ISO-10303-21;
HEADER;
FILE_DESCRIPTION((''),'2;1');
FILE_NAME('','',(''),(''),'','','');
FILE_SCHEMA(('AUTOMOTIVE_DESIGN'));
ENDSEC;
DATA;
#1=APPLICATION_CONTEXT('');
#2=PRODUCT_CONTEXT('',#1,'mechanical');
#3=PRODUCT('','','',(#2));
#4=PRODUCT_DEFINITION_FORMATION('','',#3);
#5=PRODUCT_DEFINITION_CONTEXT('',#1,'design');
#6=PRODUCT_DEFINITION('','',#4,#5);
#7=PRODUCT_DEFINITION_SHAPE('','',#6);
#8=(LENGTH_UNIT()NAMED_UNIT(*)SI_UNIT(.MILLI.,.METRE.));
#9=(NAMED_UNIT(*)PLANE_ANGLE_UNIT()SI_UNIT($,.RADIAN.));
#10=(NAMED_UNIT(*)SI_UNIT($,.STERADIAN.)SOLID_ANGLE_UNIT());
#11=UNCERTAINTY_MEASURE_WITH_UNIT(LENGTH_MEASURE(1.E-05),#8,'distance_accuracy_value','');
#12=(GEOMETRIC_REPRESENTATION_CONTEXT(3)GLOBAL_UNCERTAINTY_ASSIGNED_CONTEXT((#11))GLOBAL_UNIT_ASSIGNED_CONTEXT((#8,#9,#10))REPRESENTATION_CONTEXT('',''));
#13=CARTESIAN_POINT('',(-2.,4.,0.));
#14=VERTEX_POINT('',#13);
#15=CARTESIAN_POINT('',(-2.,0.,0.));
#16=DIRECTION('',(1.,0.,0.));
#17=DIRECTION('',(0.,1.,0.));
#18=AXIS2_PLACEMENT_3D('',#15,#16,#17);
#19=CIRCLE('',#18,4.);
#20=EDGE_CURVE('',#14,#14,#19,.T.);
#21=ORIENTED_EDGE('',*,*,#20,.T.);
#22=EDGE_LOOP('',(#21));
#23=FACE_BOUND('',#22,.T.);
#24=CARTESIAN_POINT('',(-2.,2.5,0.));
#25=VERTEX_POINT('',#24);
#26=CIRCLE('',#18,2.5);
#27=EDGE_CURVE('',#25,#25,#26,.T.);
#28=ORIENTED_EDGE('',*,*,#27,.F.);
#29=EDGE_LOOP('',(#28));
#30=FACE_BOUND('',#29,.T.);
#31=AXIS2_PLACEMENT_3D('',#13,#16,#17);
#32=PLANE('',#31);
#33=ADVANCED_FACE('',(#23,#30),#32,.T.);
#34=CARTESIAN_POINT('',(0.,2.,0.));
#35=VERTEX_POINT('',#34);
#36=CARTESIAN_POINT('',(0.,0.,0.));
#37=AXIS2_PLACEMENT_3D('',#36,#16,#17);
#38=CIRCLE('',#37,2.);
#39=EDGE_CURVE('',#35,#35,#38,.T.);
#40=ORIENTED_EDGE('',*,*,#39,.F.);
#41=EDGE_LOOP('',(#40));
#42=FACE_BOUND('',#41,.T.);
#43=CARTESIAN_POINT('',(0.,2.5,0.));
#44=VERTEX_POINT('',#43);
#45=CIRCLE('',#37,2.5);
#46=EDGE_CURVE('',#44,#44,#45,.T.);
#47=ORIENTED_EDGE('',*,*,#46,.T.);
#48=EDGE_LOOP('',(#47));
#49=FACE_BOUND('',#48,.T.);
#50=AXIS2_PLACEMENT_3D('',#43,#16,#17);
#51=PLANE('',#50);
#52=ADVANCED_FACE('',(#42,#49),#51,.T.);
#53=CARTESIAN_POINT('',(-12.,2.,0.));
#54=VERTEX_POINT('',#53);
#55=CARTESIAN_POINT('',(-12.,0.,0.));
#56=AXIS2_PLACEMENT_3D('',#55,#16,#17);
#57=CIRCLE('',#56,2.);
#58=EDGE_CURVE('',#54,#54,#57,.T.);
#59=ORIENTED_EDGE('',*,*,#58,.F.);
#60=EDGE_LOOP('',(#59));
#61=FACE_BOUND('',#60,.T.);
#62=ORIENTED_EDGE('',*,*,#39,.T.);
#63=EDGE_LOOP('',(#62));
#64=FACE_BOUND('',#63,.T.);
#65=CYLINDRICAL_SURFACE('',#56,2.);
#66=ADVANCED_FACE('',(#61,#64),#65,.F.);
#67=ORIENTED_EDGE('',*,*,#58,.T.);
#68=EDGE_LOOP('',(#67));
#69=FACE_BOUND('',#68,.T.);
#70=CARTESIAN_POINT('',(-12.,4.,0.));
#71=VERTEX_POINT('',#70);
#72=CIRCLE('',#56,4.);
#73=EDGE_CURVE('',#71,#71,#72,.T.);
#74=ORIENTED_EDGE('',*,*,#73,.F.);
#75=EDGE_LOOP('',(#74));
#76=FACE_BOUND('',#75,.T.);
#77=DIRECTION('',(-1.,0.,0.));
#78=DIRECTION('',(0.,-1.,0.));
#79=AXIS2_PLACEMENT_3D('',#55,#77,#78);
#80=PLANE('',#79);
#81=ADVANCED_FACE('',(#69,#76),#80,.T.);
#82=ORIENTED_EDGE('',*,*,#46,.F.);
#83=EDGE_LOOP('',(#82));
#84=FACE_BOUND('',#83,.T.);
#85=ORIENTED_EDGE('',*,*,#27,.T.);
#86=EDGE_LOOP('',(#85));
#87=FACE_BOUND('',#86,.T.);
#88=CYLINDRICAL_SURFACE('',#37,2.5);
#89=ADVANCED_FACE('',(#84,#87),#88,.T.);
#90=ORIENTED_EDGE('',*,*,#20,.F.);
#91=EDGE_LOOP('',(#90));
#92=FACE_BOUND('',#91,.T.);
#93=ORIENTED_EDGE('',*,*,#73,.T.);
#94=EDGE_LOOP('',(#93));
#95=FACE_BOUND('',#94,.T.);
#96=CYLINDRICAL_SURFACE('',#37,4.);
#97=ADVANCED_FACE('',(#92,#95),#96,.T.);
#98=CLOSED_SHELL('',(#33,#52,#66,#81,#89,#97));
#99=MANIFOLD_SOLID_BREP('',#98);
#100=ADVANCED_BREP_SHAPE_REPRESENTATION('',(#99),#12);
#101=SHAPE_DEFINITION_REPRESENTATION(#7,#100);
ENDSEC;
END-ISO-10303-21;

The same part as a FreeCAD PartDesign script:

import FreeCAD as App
import Part
import Sketcher
from FreeCAD import Vector


def add_polygon(sketch, points):
    """Adds a closed chain of lines whose ends are joined by coincident constraints."""
    first, n = sketch.GeometryCount, len(points)
    for a, b in zip(points, points[1:] + points[:1]):
        sketch.addGeometry(Part.LineSegment(App.Vector(*a, 0), App.Vector(*b, 0)), False)
    for i in range(n):
        sketch.addConstraint(Sketcher.Constraint("Coincident", first + i, 2, first + (i + 1) % n, 1))

doc = App.newDocument("Part")
params = doc.addObject("Spreadsheet::Sheet", "Params")
for row, (alias, value) in enumerate([
    ("sketch1_width", "12 mm"),
    ("sketch1_width2", "2 mm"),
    ("sketch1_height", "4 mm"),
    ("sketch1_height2", "2.5 mm"),
    ("revolution_angle", "360 deg"),
    ("sketch2_diameter", "4 mm"),
], start=1):
    params.set(f"A{row}", alias)
    params.set(f"B{row}", "=" + value)
    params.setAlias(f"B{row}", alias)

body = doc.addObject("PartDesign::Body", "Body")

# Sketch on XY plane
sketch1 = body.newObject("Sketcher::SketchObject", "Sketch")
sketch1.AttachmentSupport = (doc.getObject("XY_Plane"), [""])
sketch1.MapMode = "FlatFace"
add_polygon(sketch1, [(-12, 0), (0, 0), (0, 2.5), (-2, 2.5), (-2, 4), (-12, 4)])  # lines 0-5
sketch1.addConstraint(Sketcher.Constraint("Horizontal", 0))
sketch1.addConstraint(Sketcher.Constraint("Vertical", 1))
sketch1.addConstraint(Sketcher.Constraint("Horizontal", 2))
sketch1.addConstraint(Sketcher.Constraint("Vertical", 3))
sketch1.addConstraint(Sketcher.Constraint("Horizontal", 4))
sketch1.addConstraint(Sketcher.Constraint("Vertical", 5))
sketch1.addConstraint(Sketcher.Constraint("Coincident", 0, 2, -1, 1))
sketch1.addConstraint(Sketcher.Constraint("DistanceX", 0, 1, 0, 2, 12.0))
sketch1.addConstraint(Sketcher.Constraint("DistanceX", 2, 2, 2, 1, 2.0))
sketch1.addConstraint(Sketcher.Constraint("DistanceY", 5, 2, 5, 1, 4.0))
sketch1.addConstraint(Sketcher.Constraint("DistanceY", 1, 1, 1, 2, 2.5))
sketch1.setExpression("Constraints[13]", "Params.sketch1_width")
sketch1.setExpression("Constraints[14]", "Params.sketch1_width2")
sketch1.setExpression("Constraints[15]", "Params.sketch1_height")
sketch1.setExpression("Constraints[16]", "Params.sketch1_height2")
revolution = body.newObject("PartDesign::Revolution", "Revolution")
revolution.Profile = sketch1
revolution.ReferenceAxis = (sketch1, ["H_Axis"])
revolution.setExpression("Angle", "Params.revolution_angle")

# Sketch on YZ plane
sketch2 = body.newObject("Sketcher::SketchObject", "Sketch001")
sketch2.AttachmentSupport = (doc.getObject("YZ_Plane"), [""])
sketch2.MapMode = "FlatFace"
sketch2.addGeometry(Part.Circle(Vector(0, 0, 0), Vector(0, 0, 1), 2), False)
sketch2.addConstraint(Sketcher.Constraint("Coincident", 0, 3, -1, 1))
sketch2.addConstraint(Sketcher.Constraint("Diameter", 0, 4.0))
sketch2.setExpression("Constraints[1]", "Params.sketch2_diameter")
pocket1 = body.newObject("PartDesign::Pocket", "Pocket")
pocket1.Profile = sketch2
pocket1.Type = "ThroughAll"

doc.recompute()
